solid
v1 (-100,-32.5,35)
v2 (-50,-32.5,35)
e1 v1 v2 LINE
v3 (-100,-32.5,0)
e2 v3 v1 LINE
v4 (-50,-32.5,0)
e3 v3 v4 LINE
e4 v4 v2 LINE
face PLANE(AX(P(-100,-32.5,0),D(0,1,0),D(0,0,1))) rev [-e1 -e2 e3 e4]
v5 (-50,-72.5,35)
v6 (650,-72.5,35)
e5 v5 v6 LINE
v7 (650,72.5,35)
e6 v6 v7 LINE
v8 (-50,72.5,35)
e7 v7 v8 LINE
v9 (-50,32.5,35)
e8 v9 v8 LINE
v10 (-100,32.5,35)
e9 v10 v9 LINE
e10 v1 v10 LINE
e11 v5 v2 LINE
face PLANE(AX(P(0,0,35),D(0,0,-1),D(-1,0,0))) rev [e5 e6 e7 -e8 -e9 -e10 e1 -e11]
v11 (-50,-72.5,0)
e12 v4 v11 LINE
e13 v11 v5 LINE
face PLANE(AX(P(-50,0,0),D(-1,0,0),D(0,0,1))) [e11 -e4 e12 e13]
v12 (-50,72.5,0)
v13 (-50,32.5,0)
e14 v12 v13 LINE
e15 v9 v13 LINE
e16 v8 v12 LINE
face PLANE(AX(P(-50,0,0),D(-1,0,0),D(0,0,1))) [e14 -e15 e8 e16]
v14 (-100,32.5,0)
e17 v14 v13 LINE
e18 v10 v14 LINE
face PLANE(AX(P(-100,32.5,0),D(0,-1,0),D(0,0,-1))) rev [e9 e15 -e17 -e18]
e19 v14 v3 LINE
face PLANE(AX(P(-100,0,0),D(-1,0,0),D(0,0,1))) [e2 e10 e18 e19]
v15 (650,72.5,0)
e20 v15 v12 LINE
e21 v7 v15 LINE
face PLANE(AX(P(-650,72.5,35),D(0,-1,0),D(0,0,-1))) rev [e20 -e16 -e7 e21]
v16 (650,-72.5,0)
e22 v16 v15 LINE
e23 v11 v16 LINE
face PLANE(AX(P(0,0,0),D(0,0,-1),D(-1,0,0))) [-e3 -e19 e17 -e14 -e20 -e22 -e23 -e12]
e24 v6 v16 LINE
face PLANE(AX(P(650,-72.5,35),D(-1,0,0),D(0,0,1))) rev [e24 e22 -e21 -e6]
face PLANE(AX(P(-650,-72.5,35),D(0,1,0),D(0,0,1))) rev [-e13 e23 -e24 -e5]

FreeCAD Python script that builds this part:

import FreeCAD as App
import Part
import Sketcher
from FreeCAD import Vector
Q = App.Units.Quantity

doc = App.newDocument("Part")
body = doc.addObject("PartDesign::Body", "Body")

# Sketch on XY plane
sketch1 = body.newObject("Sketcher::SketchObject", "Sketch")
sketch1.AttachmentSupport = (doc.getObject("XY_Plane"), [""])
sketch1.MapMode = "FlatFace"
sketch1.addGeometry(Part.LineSegment(Vector(-650, 72.5, 0), Vector(-650, -72.5, 0)), False)
sketch1.addGeometry(Part.LineSegment(Vector(-650, -72.5, 0), Vector(650, -72.5, 0)), False)
sketch1.addGeometry(Part.LineSegment(Vector(650, -72.5, 0), Vector(650, 72.5, 0)), False)
sketch1.addGeometry(Part.LineSegment(Vector(650, 72.5, 0), Vector(-650, 72.5, 0)), False)
sketch1.addConstraint(Sketcher.Constraint("Coincident", 0, 2, 1, 1))
sketch1.addConstraint(Sketcher.Constraint("Coincident", 1, 2, 2, 1))
sketch1.addConstraint(Sketcher.Constraint("Coincident", 2, 2, 3, 1))
sketch1.addConstraint(Sketcher.Constraint("Coincident", 3, 2, 0, 1))
sketch1.addConstraint(Sketcher.Constraint("Vertical", 0))
sketch1.addConstraint(Sketcher.Constraint("Horizontal", 1))
sketch1.addConstraint(Sketcher.Constraint("Vertical", 2))
sketch1.addConstraint(Sketcher.Constraint("Horizontal", 3))
sketch1.addConstraint(Sketcher.Constraint("Symmetric", 0, 2, 2, 2, -1, 1))
sketch1.addConstraint(Sketcher.Constraint("DistanceX", 1, 1, 1, 2, Q("1300 mm")))
sketch1.addConstraint(Sketcher.Constraint("DistanceY", 0, 2, 0, 1, Q("145 mm")))
pad1 = body.newObject("PartDesign::Pad", "Pad")
pad1.Profile = sketch1
pad1.Length = 35

# Sketch on YZ plane
sketch2 = body.newObject("Sketcher::SketchObject", "Sketch001")
sketch2.AttachmentSupport = (doc.getObject("YZ_Plane"), [""])
sketch2.MapMode = "FlatFace"
sketch2.AttachmentOffset = App.Placement(Vector(0, 0, -650), App.Rotation())
sketch2.addGeometry(Part.LineSegment(Vector(72.5, 0, 0), Vector(-72.5, 0, 0)), False)
sketch2.addGeometry(Part.LineSegment(Vector(-72.5, 0, 0), Vector(-72.5, 35, 0)), False)
sketch2.addGeometry(Part.LineSegment(Vector(-72.5, 35, 0), Vector(72.5, 35, 0)), False)
sketch2.addGeometry(Part.LineSegment(Vector(72.5, 35, 0), Vector(72.5, 0, 0)), False)
sketch2.addConstraint(Sketcher.Constraint("Coincident", 0, 2, 1, 1))
sketch2.addConstraint(Sketcher.Constraint("Coincident", 1, 2, 2, 1))
sketch2.addConstraint(Sketcher.Constraint("Coincident", 2, 2, 3, 1))
sketch2.addConstraint(Sketcher.Constraint("Coincident", 3, 2, 0, 1))
sketch2.addConstraint(Sketcher.Constraint("Horizontal", 0))
sketch2.addConstraint(Sketcher.Constraint("Vertical", 1))
sketch2.addConstraint(Sketcher.Constraint("Horizontal", 2))
sketch2.addConstraint(Sketcher.Constraint("Vertical", 3))
sketch2.addConstraint(Sketcher.Constraint("Symmetric", 0, 2, 3, 2, -1, 1))
sketch2.addConstraint(Sketcher.Constraint("DistanceX", 0, 2, 0, 1, Q("145 mm")))
sketch2.addConstraint(Sketcher.Constraint("DistanceY", 1, 1, 1, 2, Q("35 mm")))
pocket1 = body.newObject("PartDesign::Pocket", "Pocket")
pocket1.Profile = sketch2
pocket1.Length = 600
pocket1.Reversed = True

# Sketch on YZ plane
sketch3 = body.newObject("Sketcher::SketchObject", "Sketch002")
sketch3.AttachmentSupport = (doc.getObject("YZ_Plane"), [""])
sketch3.MapMode = "FlatFace"
sketch3.AttachmentOffset = App.Placement(Vector(0, 0, -50), App.Rotation())
sketch3.addGeometry(Part.LineSegment(Vector(32.5, 0, 0), Vector(-32.5, 0, 0)), False)
sketch3.addGeometry(Part.LineSegment(Vector(-32.5, 0, 0), Vector(-32.5, 35, 0)), False)
sketch3.addGeometry(Part.LineSegment(Vector(-32.5, 35, 0), Vector(32.5, 35, 0)), False)
sketch3.addGeometry(Part.LineSegment(Vector(32.5, 35, 0), Vector(32.5, 0, 0)), False)
sketch3.addConstraint(Sketcher.Constraint("Coincident", 0, 2, 1, 1))
sketch3.addConstraint(Sketcher.Constraint("Coincident", 1, 2, 2, 1))
sketch3.addConstraint(Sketcher.Constraint("Coincident", 2, 2, 3, 1))
sketch3.addConstraint(Sketcher.Constraint("Coincident", 3, 2, 0, 1))
sketch3.addConstraint(Sketcher.Constraint("Horizontal", 0))
sketch3.addConstraint(Sketcher.Constraint("Vertical", 1))
sketch3.addConstraint(Sketcher.Constraint("Horizontal", 2))
sketch3.addConstraint(Sketcher.Constraint("Vertical", 3))
sketch3.addConstraint(Sketcher.Constraint("Symmetric", 0, 2, 3, 2, -1, 1))
sketch3.addConstraint(Sketcher.Constraint("DistanceX", 0, 2, 0, 1, Q("65 mm")))
sketch3.addConstraint(Sketcher.Constraint("DistanceY", 1, 1, 1, 2, Q("35 mm")))
pad2 = body.newObject("PartDesign::Pad", "Pad001")
pad2.Profile = sketch3
pad2.Length = 50
pad2.Reversed = True

doc.recompute()
